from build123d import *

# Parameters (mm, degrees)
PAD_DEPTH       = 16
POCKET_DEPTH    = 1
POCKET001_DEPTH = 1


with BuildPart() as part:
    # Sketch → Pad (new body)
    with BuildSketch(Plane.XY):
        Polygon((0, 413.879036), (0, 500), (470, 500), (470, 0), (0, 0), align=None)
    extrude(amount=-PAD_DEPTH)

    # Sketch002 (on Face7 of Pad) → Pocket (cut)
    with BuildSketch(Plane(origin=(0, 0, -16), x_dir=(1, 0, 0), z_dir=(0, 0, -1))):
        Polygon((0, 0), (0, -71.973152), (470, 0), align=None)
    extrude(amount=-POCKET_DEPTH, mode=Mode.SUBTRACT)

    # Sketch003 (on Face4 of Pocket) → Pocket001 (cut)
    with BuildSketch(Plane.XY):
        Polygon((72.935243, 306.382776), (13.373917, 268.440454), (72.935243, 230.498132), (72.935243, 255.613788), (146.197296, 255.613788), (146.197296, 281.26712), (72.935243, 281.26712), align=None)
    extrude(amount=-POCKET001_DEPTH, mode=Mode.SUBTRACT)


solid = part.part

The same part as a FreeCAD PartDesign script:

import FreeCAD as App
import Part
import Sketcher
from FreeCAD import Vector
Q = App.Units.Quantity

doc = App.newDocument("Part")
body = doc.addObject("PartDesign::Body", "Body")

# Sketch on XY plane
sketch1 = body.newObject("Sketcher::SketchObject", "Sketch")
sketch1.AttachmentSupport = (doc.getObject("XY_Plane"), [""])
sketch1.MapMode = "FlatFace"
sketch1.addGeometry([
    Part.LineSegment(Vector(0, 500, 0), Vector(0, 0, 0)),
    Part.LineSegment(Vector(0, 0, 0), Vector(470, 0, 0)),
    Part.LineSegment(Vector(470, 0, 0), Vector(470, 500, 0)),
    Part.LineSegment(Vector(470, 500, 0), Vector(0, 500, 0)),
], False)
sketch1.addConstraint([
    Sketcher.Constraint("Coincident", 0, 2, 1, 1),
    Sketcher.Constraint("Coincident", 1, 2, 2, 1),
    Sketcher.Constraint("Coincident", 2, 2, 3, 1),
    Sketcher.Constraint("Coincident", 3, 2, 0, 1),
    Sketcher.Constraint("Vertical", 0),
    Sketcher.Constraint("Horizontal", 1),
    Sketcher.Constraint("Vertical", 2),
    Sketcher.Constraint("Horizontal", 3),
    Sketcher.Constraint("Coincident", 0, 2, -1, 1),
    Sketcher.Constraint("DistanceX", 1, 1, 1, 2, Q("470 mm")),
    Sketcher.Constraint("DistanceY", 0, 2, 0, 1, Q("500 mm")),
])
pad1 = body.newObject("PartDesign::Pad", "Pad")
pad1.Profile = sketch1
pad1.Length = 16
pad1.Reversed = True

# Sketch on XY plane
sketch2 = body.newObject("Sketcher::SketchObject", "Sketch001")
sketch2.AttachmentSupport = (doc.getObject("XY_Plane"), [""])
sketch2.MapMode = "FlatFace"
sketch2.AttachmentOffset = App.Placement(Vector(0, 0, -16), App.Rotation())
sketch2.addGeometry([
    Part.LineSegment(Vector(0, 0, 0), Vector(0, 72, 0)),
    Part.LineSegment(Vector(0, 72, 0), Vector(470, 0, 0)),
    Part.LineSegment(Vector(470, 0, 0), Vector(0, 0, 0)),
], False)
sketch2.addConstraint([
    Sketcher.Constraint("Coincident", 0, 2, 1, 1),
    Sketcher.Constraint("Coincident", 1, 2, 2, 1),
    Sketcher.Constraint("Coincident", 2, 2, 0, 1),
    Sketcher.Constraint("Vertical", 0),
    Sketcher.Constraint("Horizontal", 2),
    Sketcher.Constraint("Coincident", 2, 2, -1, 1),
    Sketcher.Constraint("DistanceX", 2, 2, 2, 1, Q("470 mm")),
    Sketcher.Constraint("DistanceY", 0, 1, 0, 2, Q("71.973152 mm")),
])
pocket1 = body.newObject("PartDesign::Pocket", "Pocket")
pocket1.Profile = sketch2
pocket1.Length = 1
pocket1.Reversed = True

# Sketch on XY plane
sketch3 = body.newObject("Sketcher::SketchObject", "Sketch002")
sketch3.AttachmentSupport = (doc.getObject("XY_Plane"), [""])
sketch3.MapMode = "FlatFace"
sketch3.addGeometry([
    Part.LineSegment(Vector(73, 306, 0), Vector(13, 268, 0)),  # 0
    Part.LineSegment(Vector(13, 268, 0), Vector(73, 230, 0)),  # 1
    Part.LineSegment(Vector(73, 230, 0), Vector(73, 256, 0)),  # 2
    Part.LineSegment(Vector(73, 256, 0), Vector(146, 256, 0)),  # 3
    Part.LineSegment(Vector(146, 256, 0), Vector(146, 281, 0)),  # 4
    Part.LineSegment(Vector(146, 281, 0), Vector(73, 281, 0)),  # 5
    Part.LineSegment(Vector(73, 281, 0), Vector(73, 306, 0)),  # 6
], False)
sketch3.addConstraint([
    Sketcher.Constraint("Coincident", 0, 2, 1, 1),
    Sketcher.Constraint("Coincident", 1, 2, 2, 1),
    Sketcher.Constraint("Coincident", 2, 2, 3, 1),
    Sketcher.Constraint("Coincident", 3, 2, 4, 1),
    Sketcher.Constraint("Coincident", 4, 2, 5, 1),
    Sketcher.Constraint("Coincident", 5, 2, 6, 1),
    Sketcher.Constraint("Coincident", 6, 2, 0, 1),
    Sketcher.Constraint("Vertical", 2),
    Sketcher.Constraint("Horizontal", 3),
    Sketcher.Constraint("Vertical", 4),
    Sketcher.Constraint("Horizontal", 5),
    Sketcher.Constraint("Vertical", 6),
    Sketcher.Constraint("Vertical", 2, 2, 5, 2),
    Sketcher.Constraint("Equal", 2, 6),
    Sketcher.Constraint("Equal", 0, 1),
    Sketcher.Constraint("DistanceY", 4, 1, 4, 2, Q("25.653332 mm")),
    Sketcher.Constraint("DistanceX", 3, 1, 3, 2, Q("73.262053 mm")),
    Sketcher.Constraint("DistanceY", 2, 1, 2, 2, Q("25.115656 mm")),
    Sketcher.Constraint("DistanceY", -1, 1, 1, 2, Q("230.498132 mm")),
    Sketcher.Constraint("DistanceX", 0, 2, 3, 2, Q("132.823379 mm")),
    Sketcher.Constraint("DistanceX", -1, 1, 0, 2, Q("13.373917 mm")),
])
pocket2 = body.newObject("PartDesign::Pocket", "Pocket001")
pocket2.Profile = sketch3
pocket2.Length = 1

doc.recompute()
